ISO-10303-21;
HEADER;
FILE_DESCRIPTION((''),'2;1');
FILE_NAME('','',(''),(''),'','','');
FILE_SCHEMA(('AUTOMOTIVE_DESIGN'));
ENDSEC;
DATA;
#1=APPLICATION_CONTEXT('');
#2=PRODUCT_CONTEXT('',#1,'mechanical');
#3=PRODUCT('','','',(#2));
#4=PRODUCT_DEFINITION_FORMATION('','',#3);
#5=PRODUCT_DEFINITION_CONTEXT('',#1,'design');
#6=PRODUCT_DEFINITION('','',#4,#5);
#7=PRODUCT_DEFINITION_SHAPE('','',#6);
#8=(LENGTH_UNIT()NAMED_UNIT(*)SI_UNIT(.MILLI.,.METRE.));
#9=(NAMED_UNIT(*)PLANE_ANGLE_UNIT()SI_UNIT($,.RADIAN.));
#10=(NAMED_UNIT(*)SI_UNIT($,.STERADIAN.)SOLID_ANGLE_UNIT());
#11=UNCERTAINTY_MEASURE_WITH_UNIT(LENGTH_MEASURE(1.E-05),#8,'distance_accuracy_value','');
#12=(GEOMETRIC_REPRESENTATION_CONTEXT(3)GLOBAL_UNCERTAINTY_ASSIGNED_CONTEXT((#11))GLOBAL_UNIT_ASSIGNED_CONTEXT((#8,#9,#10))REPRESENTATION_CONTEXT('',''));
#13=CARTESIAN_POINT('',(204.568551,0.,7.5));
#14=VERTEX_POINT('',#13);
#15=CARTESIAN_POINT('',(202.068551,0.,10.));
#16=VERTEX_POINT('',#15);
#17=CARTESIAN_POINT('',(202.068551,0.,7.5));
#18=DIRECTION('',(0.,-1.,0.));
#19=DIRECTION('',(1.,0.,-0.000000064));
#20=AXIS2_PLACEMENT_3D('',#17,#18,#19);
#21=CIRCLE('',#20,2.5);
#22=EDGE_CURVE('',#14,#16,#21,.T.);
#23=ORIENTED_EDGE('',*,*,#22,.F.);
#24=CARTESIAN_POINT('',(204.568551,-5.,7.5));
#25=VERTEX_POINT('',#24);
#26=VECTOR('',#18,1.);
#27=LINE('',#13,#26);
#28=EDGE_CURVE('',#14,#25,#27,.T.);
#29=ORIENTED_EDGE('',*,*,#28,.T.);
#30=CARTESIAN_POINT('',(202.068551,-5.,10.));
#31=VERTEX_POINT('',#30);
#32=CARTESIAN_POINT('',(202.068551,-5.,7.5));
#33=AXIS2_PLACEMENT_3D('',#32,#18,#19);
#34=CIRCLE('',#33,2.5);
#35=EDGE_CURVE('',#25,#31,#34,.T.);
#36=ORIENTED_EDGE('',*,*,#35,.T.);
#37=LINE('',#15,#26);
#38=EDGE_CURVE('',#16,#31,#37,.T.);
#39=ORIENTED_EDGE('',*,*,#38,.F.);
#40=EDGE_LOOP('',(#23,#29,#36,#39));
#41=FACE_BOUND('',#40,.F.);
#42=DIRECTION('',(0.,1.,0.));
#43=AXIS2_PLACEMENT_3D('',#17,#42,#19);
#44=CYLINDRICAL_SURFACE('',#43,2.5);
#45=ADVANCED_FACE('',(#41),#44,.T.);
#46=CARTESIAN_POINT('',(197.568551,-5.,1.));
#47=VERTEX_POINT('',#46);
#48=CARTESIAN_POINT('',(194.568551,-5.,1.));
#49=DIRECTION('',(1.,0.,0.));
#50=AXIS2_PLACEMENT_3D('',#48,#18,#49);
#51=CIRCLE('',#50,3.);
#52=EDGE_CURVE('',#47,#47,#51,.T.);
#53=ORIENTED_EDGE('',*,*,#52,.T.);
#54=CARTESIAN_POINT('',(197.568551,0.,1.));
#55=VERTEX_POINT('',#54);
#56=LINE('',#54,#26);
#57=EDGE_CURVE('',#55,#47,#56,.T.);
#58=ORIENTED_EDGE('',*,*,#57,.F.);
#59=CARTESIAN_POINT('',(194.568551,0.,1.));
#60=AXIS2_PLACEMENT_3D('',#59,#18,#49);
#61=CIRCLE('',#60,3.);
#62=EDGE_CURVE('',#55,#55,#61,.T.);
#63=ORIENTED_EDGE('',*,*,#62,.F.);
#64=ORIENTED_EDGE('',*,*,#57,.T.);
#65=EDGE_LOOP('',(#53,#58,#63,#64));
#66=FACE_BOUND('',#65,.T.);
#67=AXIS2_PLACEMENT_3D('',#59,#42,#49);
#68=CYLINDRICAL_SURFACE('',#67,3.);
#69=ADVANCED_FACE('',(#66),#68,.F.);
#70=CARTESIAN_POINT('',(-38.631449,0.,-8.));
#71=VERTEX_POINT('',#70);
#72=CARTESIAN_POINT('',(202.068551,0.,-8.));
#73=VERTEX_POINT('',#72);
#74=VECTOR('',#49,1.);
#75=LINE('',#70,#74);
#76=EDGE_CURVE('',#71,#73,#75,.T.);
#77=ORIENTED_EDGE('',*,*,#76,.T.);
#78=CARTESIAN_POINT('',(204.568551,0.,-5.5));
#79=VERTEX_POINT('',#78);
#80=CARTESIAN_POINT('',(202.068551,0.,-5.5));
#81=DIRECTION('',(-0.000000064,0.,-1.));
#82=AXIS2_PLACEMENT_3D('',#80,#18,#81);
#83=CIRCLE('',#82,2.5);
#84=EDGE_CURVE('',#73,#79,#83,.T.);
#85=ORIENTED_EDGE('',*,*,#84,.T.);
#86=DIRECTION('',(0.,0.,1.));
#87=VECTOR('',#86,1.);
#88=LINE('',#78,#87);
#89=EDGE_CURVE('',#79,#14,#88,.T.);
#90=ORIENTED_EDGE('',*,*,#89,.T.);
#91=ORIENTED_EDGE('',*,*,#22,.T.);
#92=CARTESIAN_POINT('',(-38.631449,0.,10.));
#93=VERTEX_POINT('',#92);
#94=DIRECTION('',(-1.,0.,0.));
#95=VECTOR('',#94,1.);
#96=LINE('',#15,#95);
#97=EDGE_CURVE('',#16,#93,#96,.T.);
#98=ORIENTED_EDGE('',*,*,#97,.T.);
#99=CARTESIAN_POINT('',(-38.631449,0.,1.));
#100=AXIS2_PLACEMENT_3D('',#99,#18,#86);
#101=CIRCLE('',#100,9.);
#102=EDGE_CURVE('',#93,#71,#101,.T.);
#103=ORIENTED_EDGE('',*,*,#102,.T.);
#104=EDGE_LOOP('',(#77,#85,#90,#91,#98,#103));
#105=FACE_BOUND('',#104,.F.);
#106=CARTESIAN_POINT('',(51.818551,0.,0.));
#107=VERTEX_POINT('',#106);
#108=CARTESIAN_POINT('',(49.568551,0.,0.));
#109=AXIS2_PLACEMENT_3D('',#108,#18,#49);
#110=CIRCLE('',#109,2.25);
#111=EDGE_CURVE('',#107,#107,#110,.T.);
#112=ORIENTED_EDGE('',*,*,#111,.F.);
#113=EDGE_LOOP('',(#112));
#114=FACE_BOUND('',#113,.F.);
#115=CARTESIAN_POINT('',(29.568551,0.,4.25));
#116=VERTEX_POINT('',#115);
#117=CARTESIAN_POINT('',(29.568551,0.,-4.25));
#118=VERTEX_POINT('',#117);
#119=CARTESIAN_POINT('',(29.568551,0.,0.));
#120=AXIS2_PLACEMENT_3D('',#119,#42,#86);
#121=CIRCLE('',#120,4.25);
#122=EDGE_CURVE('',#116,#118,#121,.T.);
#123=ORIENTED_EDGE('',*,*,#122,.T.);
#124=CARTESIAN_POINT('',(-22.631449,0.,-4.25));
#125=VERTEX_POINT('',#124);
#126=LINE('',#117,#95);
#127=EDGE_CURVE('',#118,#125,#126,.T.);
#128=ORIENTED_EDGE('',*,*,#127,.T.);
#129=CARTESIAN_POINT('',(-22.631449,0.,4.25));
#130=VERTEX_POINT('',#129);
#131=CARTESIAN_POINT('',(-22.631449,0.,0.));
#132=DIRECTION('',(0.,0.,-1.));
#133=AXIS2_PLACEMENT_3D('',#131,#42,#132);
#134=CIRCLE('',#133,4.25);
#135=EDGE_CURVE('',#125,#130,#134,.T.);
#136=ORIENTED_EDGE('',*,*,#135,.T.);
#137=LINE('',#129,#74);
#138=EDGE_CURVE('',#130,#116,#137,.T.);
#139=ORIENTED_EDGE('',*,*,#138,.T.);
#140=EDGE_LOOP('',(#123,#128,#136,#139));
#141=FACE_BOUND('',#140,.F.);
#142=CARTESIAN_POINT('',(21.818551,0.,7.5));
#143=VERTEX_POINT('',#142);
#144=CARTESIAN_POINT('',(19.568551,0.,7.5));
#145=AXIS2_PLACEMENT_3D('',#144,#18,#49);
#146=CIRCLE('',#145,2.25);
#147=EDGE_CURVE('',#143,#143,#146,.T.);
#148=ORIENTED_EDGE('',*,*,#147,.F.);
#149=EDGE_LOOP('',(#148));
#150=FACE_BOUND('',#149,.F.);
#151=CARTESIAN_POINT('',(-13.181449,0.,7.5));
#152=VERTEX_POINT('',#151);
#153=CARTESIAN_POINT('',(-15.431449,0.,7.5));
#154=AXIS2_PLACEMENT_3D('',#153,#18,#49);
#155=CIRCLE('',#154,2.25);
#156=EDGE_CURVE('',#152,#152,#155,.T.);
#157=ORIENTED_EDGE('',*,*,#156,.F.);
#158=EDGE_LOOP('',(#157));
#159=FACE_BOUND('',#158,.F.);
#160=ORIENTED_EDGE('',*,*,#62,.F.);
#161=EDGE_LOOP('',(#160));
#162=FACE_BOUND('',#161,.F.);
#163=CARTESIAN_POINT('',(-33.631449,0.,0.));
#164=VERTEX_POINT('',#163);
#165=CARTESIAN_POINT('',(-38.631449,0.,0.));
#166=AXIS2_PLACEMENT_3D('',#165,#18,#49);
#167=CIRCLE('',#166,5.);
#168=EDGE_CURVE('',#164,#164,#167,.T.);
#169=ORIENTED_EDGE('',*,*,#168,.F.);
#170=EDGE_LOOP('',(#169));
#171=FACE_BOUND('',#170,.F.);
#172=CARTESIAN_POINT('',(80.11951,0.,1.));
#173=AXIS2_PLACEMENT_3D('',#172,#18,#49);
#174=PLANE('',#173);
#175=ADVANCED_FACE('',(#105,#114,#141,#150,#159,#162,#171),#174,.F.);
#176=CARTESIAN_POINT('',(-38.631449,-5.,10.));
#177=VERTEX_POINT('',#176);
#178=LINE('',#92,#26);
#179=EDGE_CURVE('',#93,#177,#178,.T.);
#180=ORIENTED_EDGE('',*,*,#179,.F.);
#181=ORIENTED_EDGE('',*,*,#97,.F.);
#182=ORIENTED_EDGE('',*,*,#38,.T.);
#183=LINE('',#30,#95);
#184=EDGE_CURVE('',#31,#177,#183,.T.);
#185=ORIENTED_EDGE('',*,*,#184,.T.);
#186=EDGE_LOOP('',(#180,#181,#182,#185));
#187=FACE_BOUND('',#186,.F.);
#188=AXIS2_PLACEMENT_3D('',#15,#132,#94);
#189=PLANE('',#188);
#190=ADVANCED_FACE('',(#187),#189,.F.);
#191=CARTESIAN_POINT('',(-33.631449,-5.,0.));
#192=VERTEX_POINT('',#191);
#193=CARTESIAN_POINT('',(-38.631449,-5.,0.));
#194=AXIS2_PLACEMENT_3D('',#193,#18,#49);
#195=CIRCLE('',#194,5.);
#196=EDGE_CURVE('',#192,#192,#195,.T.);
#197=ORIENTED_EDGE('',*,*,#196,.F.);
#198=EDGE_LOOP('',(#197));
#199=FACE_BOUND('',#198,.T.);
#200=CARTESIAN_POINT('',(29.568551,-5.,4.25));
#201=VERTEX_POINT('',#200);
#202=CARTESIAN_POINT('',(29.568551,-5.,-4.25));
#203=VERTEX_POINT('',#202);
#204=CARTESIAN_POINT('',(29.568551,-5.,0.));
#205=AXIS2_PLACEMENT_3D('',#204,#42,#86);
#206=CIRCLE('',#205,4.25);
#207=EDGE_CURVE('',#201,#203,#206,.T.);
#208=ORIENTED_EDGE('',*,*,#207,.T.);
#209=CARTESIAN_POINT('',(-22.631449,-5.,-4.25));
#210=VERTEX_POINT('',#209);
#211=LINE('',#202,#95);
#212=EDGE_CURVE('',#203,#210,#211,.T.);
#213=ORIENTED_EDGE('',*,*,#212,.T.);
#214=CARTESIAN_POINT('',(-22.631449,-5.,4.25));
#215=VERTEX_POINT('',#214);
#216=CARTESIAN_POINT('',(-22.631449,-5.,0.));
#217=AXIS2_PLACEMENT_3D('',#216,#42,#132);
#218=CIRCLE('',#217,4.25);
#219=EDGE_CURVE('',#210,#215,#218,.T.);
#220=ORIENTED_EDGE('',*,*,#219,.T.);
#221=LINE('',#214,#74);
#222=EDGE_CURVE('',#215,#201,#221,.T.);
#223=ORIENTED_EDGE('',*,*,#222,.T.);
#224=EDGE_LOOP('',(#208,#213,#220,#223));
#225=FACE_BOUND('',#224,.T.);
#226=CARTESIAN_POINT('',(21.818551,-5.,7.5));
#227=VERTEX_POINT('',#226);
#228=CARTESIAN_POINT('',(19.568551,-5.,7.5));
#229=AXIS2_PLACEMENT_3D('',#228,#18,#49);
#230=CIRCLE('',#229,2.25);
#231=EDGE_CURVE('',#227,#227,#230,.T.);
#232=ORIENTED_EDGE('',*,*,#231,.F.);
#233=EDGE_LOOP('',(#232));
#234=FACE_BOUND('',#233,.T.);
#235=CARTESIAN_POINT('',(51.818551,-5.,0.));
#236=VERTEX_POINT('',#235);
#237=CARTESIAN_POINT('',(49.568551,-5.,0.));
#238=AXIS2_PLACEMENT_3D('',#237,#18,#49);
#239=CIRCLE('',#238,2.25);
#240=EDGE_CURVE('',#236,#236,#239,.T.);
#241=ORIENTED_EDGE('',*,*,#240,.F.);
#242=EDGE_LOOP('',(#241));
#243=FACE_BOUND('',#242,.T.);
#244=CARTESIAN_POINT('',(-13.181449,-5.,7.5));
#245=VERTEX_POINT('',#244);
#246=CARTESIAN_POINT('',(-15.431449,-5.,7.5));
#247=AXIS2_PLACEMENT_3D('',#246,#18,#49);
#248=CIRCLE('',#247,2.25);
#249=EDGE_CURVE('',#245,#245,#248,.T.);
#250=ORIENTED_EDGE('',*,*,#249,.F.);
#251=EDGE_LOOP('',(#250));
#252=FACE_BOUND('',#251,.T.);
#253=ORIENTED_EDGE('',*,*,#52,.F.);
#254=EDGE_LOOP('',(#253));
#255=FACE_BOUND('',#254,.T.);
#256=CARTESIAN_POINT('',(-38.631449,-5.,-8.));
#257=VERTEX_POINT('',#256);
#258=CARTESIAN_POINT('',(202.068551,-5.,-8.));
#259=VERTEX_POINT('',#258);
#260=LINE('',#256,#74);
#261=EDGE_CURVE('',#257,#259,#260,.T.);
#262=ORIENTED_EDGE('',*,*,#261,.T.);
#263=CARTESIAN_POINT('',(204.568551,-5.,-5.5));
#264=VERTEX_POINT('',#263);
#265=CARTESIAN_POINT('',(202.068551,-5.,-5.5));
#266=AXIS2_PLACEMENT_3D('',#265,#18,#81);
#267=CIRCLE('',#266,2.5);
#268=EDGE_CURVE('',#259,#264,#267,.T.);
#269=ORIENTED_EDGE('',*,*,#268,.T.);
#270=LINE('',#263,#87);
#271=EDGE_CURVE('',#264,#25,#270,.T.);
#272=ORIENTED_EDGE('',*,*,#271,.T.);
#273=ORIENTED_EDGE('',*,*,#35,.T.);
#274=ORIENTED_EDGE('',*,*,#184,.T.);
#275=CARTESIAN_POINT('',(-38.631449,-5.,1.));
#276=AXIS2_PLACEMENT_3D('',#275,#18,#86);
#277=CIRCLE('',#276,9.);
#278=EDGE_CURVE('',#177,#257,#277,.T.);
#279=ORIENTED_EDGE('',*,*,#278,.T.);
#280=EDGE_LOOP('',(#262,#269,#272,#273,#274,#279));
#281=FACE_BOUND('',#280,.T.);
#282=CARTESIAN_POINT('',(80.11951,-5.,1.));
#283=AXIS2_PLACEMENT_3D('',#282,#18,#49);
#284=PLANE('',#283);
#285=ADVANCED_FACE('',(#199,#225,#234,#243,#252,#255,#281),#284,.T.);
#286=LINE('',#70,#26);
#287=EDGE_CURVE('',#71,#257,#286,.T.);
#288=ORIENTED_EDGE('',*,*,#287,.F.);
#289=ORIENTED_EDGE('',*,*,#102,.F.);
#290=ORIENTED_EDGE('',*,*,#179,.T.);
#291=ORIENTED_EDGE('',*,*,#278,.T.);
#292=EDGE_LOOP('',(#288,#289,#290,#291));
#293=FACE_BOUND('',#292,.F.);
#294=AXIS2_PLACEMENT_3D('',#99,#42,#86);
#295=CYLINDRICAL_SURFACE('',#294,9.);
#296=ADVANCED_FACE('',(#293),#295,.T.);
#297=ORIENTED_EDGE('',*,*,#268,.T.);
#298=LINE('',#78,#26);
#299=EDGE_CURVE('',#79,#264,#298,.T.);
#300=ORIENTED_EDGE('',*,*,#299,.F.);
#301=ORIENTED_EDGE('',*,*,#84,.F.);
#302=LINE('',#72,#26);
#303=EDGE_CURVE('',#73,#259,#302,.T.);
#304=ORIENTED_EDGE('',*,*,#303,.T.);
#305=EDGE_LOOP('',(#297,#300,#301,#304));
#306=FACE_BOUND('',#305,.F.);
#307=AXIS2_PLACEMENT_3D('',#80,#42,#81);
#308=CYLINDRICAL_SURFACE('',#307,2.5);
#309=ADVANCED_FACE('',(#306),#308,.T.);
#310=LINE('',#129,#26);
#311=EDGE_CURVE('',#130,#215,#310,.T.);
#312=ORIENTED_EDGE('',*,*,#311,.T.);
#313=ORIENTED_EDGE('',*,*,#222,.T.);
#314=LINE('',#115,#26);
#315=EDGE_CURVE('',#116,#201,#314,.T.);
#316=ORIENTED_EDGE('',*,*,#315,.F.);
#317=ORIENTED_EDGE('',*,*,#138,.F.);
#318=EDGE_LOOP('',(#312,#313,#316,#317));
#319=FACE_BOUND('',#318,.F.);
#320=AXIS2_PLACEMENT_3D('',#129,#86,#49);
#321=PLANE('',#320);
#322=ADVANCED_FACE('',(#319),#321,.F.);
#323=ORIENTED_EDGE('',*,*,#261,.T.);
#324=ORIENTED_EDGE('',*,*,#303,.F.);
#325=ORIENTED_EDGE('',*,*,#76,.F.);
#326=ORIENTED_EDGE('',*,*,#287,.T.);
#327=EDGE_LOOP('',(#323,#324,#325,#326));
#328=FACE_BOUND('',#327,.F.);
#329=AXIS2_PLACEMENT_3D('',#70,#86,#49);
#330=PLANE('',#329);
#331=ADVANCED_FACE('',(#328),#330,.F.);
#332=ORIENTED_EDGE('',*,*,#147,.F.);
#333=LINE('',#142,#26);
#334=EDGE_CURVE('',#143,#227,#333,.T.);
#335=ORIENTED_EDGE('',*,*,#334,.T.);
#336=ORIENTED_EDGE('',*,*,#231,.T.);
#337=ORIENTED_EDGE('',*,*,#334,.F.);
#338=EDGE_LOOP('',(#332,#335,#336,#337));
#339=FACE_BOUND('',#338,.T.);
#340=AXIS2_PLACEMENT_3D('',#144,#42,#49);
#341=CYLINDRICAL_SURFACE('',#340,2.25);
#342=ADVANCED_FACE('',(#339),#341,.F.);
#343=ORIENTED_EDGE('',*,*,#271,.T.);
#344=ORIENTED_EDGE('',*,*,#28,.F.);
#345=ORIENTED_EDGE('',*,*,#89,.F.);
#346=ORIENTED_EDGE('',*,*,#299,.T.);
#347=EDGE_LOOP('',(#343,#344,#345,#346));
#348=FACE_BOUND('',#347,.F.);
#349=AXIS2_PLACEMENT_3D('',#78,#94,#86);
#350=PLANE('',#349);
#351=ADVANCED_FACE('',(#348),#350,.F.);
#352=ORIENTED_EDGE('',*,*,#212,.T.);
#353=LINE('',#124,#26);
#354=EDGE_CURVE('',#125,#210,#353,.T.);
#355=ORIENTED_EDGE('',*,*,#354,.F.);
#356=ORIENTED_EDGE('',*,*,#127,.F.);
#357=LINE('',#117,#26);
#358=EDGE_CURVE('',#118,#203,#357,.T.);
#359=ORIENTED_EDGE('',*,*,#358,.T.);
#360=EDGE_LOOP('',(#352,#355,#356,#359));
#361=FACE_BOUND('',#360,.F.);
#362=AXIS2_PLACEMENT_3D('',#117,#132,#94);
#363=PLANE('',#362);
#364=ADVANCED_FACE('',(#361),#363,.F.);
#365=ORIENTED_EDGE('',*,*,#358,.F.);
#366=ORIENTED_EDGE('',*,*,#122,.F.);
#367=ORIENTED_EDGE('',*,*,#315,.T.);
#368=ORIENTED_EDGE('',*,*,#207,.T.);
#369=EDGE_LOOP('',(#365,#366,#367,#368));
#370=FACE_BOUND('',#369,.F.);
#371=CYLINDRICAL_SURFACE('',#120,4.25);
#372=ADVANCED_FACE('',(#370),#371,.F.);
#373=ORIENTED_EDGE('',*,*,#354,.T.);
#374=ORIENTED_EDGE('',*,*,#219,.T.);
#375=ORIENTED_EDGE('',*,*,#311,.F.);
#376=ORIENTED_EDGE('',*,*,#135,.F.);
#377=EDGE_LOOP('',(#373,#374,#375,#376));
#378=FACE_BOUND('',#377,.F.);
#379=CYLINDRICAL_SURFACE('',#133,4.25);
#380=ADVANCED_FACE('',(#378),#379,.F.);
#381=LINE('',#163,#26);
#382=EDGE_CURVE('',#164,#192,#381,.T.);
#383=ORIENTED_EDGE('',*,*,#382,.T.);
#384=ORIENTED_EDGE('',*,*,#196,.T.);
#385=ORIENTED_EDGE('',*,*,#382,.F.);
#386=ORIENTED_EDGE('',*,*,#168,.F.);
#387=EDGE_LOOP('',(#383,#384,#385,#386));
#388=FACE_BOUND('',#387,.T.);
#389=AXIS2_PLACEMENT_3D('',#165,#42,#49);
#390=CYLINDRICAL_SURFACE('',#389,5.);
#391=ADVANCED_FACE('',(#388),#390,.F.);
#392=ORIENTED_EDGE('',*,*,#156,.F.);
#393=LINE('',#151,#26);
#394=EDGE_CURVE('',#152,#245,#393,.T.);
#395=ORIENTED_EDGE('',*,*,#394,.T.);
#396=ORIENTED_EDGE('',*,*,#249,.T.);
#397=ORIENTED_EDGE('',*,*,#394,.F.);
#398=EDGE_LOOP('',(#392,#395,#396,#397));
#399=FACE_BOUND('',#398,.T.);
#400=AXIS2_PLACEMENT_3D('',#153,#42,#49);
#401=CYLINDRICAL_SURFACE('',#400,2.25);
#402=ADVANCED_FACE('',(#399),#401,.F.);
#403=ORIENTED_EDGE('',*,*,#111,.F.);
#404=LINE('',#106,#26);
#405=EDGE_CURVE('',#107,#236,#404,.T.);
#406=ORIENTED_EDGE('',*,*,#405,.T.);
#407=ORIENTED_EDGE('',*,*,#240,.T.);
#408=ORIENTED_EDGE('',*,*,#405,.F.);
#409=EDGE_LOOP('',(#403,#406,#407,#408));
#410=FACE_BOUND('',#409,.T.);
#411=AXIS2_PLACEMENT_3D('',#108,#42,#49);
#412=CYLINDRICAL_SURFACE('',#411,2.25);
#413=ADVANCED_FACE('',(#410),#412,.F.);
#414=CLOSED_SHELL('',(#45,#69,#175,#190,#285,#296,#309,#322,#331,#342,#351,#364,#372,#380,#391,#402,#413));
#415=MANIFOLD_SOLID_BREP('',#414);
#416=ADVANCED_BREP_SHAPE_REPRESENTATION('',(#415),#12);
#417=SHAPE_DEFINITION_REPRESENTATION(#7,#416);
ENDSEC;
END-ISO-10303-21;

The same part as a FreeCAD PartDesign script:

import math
import FreeCAD as App
import Part
import Sketcher

doc = App.newDocument("Part")
params = doc.addObject("Spreadsheet::Sheet", "Params")
for row, (alias, value) in enumerate([
    ("sketch1_diameter", "10 mm"),
    ("sketch1_diameter2", "6 mm"),
    ("sketch1_radius", "9 mm"),
    ("sketch1_diameter3", "4.5 mm"),
    ("sketch1_radius2", "2.5 mm"),
    ("pad1_length", "5 mm"),
], start=1):
    params.set(f"A{row}", alias)
    params.set(f"B{row}", "=" + value)
    params.setAlias(f"B{row}", alias)

body = doc.addObject("PartDesign::Body", "Body")

# Sketch on XZ plane
sketch1 = body.newObject("Sketcher::SketchObject", "Sketch")
sketch1.AttachmentSupport = (doc.getObject("XZ_Plane"), [""])
sketch1.MapMode = "FlatFace"
sketch1.addGeometry(Part.LineSegment(App.Vector(202.1, 10, 0), App.Vector(-38.6, 10, 0)), False)
sketch1.addGeometry(Part.ArcOfCircle(Part.Circle(App.Vector(-38.6, 1, 0), App.Vector(0, 0, 1), 9), math.radians(90), math.radians(270)), False)
sketch1.addGeometry(Part.LineSegment(App.Vector(-38.6, -8, 0), App.Vector(202.1, -8, 0)), False)
sketch1.addGeometry(Part.ArcOfCircle(Part.Circle(App.Vector(202.1, -5.5, 0), App.Vector(0, 0, 1), 2.5), math.radians(-90), math.radians(0)), False)
sketch1.addGeometry(Part.LineSegment(App.Vector(204.6, -5.5, 0), App.Vector(204.6, 7.5, 0)), False)
sketch1.addGeometry(Part.ArcOfCircle(Part.Circle(App.Vector(202.1, 7.5, 0), App.Vector(0, 0, 1), 2.5), math.radians(0), math.radians(90)), False)
sketch1.addGeometry(Part.Circle(App.Vector(-38.6, 0, 0), App.Vector(0, 0, 1), 5), False)
sketch1.addGeometry(Part.LineSegment(App.Vector(29.6, -4.2, 0), App.Vector(-22.6, -4.2, 0)), False)
sketch1.addGeometry(Part.ArcOfCircle(Part.Circle(App.Vector(-22.6, 0, 0), App.Vector(0, 0, 1), 4.2), math.radians(90), math.radians(270)), False)
sketch1.addGeometry(Part.LineSegment(App.Vector(-22.6, 4.2, 0), App.Vector(29.6, 4.2, 0)), False)
sketch1.addGeometry(Part.ArcOfCircle(Part.Circle(App.Vector(29.6, 0, 0), App.Vector(0, 0, 1), 4.2), math.radians(-90), math.radians(90)), False)
sketch1.addGeometry(Part.Circle(App.Vector(49.6, 0, 0), App.Vector(0, 0, 1), 2.2), False)
sketch1.addGeometry(Part.Circle(App.Vector(194.6, 1, 0), App.Vector(0, 0, 1), 3), False)
sketch1.addGeometry(Part.Circle(App.Vector(-15.4, 7.5, 0), App.Vector(0, 0, 1), 2.2), False)
sketch1.addGeometry(Part.Circle(App.Vector(19.6, 7.5, 0), App.Vector(0, 0, 1), 2.2), False)
sketch1.addConstraint(Sketcher.Constraint("Tangent", 0, 2, 1, 1))
sketch1.addConstraint(Sketcher.Constraint("Tangent", 1, 2, 2, 1))
sketch1.addConstraint(Sketcher.Constraint("Tangent", 2, 2, 3, 1))
sketch1.addConstraint(Sketcher.Constraint("Tangent", 3, 2, 4, 1))
sketch1.addConstraint(Sketcher.Constraint("Tangent", 4, 2, 5, 1))
sketch1.addConstraint(Sketcher.Constraint("Tangent", 5, 2, 0, 1))
sketch1.addConstraint(Sketcher.Constraint("Tangent", 7, 2, 8, 2))
sketch1.addConstraint(Sketcher.Constraint("Tangent", 8, 1, 9, 1))
sketch1.addConstraint(Sketcher.Constraint("Tangent", 9, 2, 10, 2))
sketch1.addConstraint(Sketcher.Constraint("Tangent", 10, 1, 7, 1))
sketch1.addConstraint(Sketcher.Constraint("Horizontal", 0))
sketch1.addConstraint(Sketcher.Constraint("Horizontal", 2))
sketch1.addConstraint(Sketcher.Constraint("Vertical", 4))
sketch1.addConstraint(Sketcher.Constraint("Horizontal", 7))
sketch1.addConstraint(Sketcher.Constraint("Horizontal", 9))
sketch1.addConstraint(Sketcher.Constraint("Equal", 3, 5))
sketch1.addConstraint(Sketcher.Constraint("Equal", 11, 13))
sketch1.addConstraint(Sketcher.Constraint("Equal", 13, 14))
sketch1.addConstraint(Sketcher.Constraint("PointOnObject", 6, 3, -1))
sketch1.addConstraint(Sketcher.Constraint("PointOnObject", 8, 3, -1))
sketch1.addConstraint(Sketcher.Constraint("PointOnObject", 11, 3, -1))
sketch1.addConstraint(Sketcher.Constraint("Horizontal", 1, 3, 12, 3))
sketch1.addConstraint(Sketcher.Constraint("Horizontal", 5, 3, 13, 3))
sketch1.addConstraint(Sketcher.Constraint("Horizontal", 13, 3, 14, 3))
sketch1.addConstraint(Sketcher.Constraint("Vertical", 1, 3, 6, 3))
sketch1.addConstraint(Sketcher.Constraint("Diameter", 6, 10.0))
sketch1.addConstraint(Sketcher.Constraint("Diameter", 12, 6.0))
sketch1.addConstraint(Sketcher.Constraint("Radius", 1, 9.0))
sketch1.addConstraint(Sketcher.Constraint("Diameter", 11, 4.5))
sketch1.addConstraint(Sketcher.Constraint("Radius", 3, 2.5))
sketch1.addConstraint(Sketcher.Constraint("Radius", 8, 4.25))
sketch1.addConstraint(Sketcher.Constraint("DistanceX", 0, 2, 0, 1, 240.7))
sketch1.addConstraint(Sketcher.Constraint("DistanceX", 7, 2, 7, 1, 52.2))
sketch1.addConstraint(Sketcher.Constraint("DistanceY", -1, 1, 1, 3, 1.0))
sketch1.addConstraint(Sketcher.Constraint("DistanceX", 6, 3, 8, 3, 16.0))
sketch1.addConstraint(Sketcher.Constraint("DistanceX", 10, 3, 11, 3, 20.0))
sketch1.addConstraint(Sketcher.Constraint("DistanceX", 11, 3, 12, 3, 145.0))
sketch1.addConstraint(Sketcher.Constraint("DistanceX", 13, 3, 10, 3, 45.0))
sketch1.addConstraint(Sketcher.Constraint("DistanceX", 14, 3, 10, 3, 10.0))
sketch1.addConstraint(Sketcher.Constraint("DistanceX", 1, 3, -1, 1, 38.631449))
sketch1.setExpression("Constraints[25]", "Params.sketch1_diameter")
sketch1.setExpression("Constraints[26]", "Params.sketch1_diameter2")
sketch1.setExpression("Constraints[27]", "Params.sketch1_radius")
sketch1.setExpression("Constraints[28]", "Params.sketch1_diameter3")
sketch1.setExpression("Constraints[29]", "Params.sketch1_radius2")
pad1 = body.newObject("PartDesign::Pad", "Pad")
pad1.Profile = sketch1
pad1.setExpression("Length", "Params.pad1_length")

doc.recompute()
